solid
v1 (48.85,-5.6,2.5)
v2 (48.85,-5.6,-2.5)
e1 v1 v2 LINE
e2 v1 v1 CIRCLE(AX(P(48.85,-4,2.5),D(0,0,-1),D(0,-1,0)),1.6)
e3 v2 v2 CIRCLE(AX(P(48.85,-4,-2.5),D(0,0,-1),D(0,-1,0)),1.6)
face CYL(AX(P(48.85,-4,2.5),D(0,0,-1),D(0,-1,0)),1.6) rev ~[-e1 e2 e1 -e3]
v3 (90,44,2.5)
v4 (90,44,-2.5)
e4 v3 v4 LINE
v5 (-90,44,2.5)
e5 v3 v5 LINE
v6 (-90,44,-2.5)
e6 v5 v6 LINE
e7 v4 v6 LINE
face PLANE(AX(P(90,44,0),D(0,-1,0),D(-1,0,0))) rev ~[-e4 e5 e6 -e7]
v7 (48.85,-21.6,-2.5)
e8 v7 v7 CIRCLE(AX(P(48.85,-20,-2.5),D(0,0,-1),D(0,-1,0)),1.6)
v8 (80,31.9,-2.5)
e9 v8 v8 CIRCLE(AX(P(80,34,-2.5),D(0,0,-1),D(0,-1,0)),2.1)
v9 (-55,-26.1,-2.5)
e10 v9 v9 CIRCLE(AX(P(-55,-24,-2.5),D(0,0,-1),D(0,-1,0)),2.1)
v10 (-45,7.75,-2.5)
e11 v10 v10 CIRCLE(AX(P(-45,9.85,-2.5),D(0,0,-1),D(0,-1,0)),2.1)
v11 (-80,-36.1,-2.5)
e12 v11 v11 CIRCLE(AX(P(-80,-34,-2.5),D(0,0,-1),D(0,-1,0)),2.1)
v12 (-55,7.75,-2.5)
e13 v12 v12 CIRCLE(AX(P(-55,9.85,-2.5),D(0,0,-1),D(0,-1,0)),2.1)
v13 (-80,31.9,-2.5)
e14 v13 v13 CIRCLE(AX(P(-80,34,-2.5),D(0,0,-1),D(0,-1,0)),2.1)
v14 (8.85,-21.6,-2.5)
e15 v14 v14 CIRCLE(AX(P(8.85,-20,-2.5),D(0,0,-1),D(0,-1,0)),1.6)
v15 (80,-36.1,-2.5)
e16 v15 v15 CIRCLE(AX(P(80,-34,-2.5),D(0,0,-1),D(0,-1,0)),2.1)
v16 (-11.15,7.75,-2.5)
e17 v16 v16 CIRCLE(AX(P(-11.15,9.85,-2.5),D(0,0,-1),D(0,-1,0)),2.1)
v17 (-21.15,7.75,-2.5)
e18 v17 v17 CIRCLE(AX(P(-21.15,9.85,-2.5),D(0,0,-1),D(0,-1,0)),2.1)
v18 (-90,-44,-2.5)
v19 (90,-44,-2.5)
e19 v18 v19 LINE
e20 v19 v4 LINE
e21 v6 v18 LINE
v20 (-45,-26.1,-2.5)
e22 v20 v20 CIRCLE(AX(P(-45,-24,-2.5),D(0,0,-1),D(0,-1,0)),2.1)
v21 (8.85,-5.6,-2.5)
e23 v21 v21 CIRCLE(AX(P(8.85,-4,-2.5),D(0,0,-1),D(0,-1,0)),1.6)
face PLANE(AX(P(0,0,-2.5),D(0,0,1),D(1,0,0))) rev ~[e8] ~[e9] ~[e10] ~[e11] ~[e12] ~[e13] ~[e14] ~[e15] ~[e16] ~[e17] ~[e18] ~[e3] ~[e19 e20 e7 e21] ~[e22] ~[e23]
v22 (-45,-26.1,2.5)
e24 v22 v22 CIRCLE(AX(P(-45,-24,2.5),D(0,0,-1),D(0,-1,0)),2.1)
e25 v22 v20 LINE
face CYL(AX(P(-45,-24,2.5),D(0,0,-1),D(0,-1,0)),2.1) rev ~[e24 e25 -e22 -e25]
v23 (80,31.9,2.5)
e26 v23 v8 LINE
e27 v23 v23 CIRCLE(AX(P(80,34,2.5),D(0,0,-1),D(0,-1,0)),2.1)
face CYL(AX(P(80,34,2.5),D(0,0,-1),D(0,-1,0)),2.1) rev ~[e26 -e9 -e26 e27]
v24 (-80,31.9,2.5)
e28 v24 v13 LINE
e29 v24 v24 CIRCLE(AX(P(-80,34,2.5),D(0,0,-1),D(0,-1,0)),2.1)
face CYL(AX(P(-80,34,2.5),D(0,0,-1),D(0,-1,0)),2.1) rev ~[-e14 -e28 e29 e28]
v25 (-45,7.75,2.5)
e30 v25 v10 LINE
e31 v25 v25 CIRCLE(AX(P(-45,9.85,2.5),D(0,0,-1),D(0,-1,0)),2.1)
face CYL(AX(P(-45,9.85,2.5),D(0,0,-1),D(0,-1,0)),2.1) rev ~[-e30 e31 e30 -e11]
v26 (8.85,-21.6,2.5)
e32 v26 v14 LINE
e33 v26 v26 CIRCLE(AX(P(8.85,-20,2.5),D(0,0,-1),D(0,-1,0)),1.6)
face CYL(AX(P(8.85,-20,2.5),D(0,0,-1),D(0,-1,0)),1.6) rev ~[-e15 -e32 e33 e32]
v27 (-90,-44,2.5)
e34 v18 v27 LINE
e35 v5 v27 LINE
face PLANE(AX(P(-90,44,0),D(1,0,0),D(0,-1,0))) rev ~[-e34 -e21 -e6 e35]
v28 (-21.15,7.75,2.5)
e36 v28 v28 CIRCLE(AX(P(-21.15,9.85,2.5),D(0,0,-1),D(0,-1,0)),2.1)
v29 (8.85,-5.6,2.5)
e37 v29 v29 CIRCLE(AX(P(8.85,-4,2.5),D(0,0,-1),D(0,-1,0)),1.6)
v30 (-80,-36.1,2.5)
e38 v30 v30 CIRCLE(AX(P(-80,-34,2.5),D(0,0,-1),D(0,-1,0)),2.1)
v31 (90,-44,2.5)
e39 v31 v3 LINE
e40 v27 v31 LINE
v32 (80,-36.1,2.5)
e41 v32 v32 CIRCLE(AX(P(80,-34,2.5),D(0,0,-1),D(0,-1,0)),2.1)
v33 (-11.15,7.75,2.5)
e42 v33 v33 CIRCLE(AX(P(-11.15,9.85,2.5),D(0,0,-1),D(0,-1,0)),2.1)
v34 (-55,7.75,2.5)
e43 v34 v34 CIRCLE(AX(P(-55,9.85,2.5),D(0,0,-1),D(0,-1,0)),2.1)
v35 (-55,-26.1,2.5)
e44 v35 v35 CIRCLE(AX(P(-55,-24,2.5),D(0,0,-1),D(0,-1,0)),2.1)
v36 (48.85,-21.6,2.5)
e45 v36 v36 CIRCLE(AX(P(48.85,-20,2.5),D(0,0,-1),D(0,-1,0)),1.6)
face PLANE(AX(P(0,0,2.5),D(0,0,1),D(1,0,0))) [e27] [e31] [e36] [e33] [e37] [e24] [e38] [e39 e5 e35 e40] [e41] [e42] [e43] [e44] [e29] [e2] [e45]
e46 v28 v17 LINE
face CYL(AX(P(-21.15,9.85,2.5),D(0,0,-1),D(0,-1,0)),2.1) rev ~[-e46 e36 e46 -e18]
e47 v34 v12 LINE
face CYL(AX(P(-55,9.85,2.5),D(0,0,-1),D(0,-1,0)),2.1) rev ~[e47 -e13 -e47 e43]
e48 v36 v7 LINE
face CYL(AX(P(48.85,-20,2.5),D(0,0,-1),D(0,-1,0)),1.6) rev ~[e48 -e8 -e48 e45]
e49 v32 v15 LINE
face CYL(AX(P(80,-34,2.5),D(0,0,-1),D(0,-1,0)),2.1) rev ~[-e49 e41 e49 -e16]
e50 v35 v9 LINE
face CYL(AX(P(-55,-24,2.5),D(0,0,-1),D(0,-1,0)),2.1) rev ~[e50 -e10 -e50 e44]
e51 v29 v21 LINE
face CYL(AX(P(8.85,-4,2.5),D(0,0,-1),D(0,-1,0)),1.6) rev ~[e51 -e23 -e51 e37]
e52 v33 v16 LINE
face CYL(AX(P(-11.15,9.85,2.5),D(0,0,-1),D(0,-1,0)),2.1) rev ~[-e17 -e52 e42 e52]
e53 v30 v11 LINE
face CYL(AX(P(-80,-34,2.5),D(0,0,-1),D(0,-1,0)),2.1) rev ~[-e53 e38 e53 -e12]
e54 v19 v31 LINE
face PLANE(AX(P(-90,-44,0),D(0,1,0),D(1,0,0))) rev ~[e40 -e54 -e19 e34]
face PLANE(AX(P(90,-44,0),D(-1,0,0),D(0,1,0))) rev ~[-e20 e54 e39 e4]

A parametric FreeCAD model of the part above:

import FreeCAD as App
import Part
import Sketcher
Q = App.Units.Quantity


def add_polygon(sketch, points):
    """Adds a closed chain of lines whose ends are joined by coincident constraints."""
    first, n = sketch.GeometryCount, len(points)
    for a, b in zip(points, points[1:] + points[:1]):
        sketch.addGeometry(Part.LineSegment(App.Vector(*a, 0), App.Vector(*b, 0)), False)
    for i in range(n):
        sketch.addConstraint(Sketcher.Constraint("Coincident", first + i, 2, first + (i + 1) % n, 1))

doc = App.newDocument("Part")
body = doc.addObject("PartDesign::Body", "Body")

# Sketch on XY plane
sketch1 = doc.addObject("Sketcher::SketchObject", "Sketch")
body.addObject(sketch1)
sketch1.AttachmentSupport = (doc.XY_Plane, [""])
sketch1.MapMode = "FlatFace"
add_polygon(sketch1, [(-90, 44), (-90, -44), (90, -44), (90, 44)])  # lines 0-3
sketch1.addConstraint(Sketcher.Constraint("Vertical", 0))
sketch1.addConstraint(Sketcher.Constraint("Horizontal", 1))
sketch1.addConstraint(Sketcher.Constraint("Vertical", 2))
sketch1.addConstraint(Sketcher.Constraint("Horizontal", 3))
sketch1.addConstraint(Sketcher.Constraint("Symmetric", 0, 2, 2, 2, -1, 1))
sketch1.addConstraint(Sketcher.Constraint("DistanceX", 1, 1, 1, 2, Q("180 mm")))
sketch1.addConstraint(Sketcher.Constraint("DistanceY", 0, 2, 0, 1, Q("88 mm")))
pad1 = doc.addObject("PartDesign::Pad", "Pad")
body.addObject(pad1)
pad1.Profile = sketch1
pad1.Length = 5
pad1.Midplane = True

# Sketch on XY plane
sketch2 = doc.addObject("Sketcher::SketchObject", "Sketch001")
body.addObject(sketch2)
sketch2.AttachmentSupport = (doc.XY_Plane, [""])
sketch2.MapMode = "FlatFace"
sketch2.AttachmentOffset = App.Placement(App.Vector(0, 0, 2.5), App.Rotation())
sketch2.addGeometry(Part.Circle(App.Vector(-45, -24, 0), App.Vector(0, 0, 1), 2.1), False)
sketch2.addGeometry(Part.Circle(App.Vector(-45, 9.8, 0), App.Vector(0, 0, 1), 2.1), False)
sketch2.addGeometry(Part.Circle(App.Vector(-11.2, 9.8, 0), App.Vector(0, 0, 1), 2.1), False)
sketch2.addConstraint(Sketcher.Constraint("Equal", 0, 1))
sketch2.addConstraint(Sketcher.Constraint("Equal", 1, 2))
sketch2.addConstraint(Sketcher.Constraint("Horizontal", 1, 3, 2, 3))
sketch2.addConstraint(Sketcher.Constraint("Vertical", 0, 3, 1, 3))
sketch2.addConstraint(Sketcher.Constraint("Diameter", 0, Q("4.2 mm")))
sketch2.addConstraint(Sketcher.Constraint("DistanceX", 0, 3, -1, 1, Q("45 mm")))
sketch2.addConstraint(Sketcher.Constraint("DistanceY", 0, 3, -1, 1, Q("24 mm")))
sketch2.addConstraint(Sketcher.Constraint("DistanceY", -1, 1, 1, 3, Q("9.85 mm")))
sketch2.addConstraint(Sketcher.Constraint("DistanceX", 2, 3, -1, 1, Q("11.15 mm")))
doc.recompute()
hole = doc.addObject("PartDesign::Hole", "Hole")
body.addObject(hole)
hole.Profile = sketch2
hole.ThreadType = "None"
hole.Diameter = 4.2
hole.DepthType = "ThroughAll"

# Sketch on XY plane
sketch3 = doc.addObject("Sketcher::SketchObject", "Sketch002")
body.addObject(sketch3)
sketch3.AttachmentSupport = (doc.XY_Plane, [""])
sketch3.MapMode = "FlatFace"
sketch3.AttachmentOffset = App.Placement(App.Vector(0, 0, 2.5), App.Rotation())
sketch3.addGeometry(Part.Circle(App.Vector(8.8, -20, 0), App.Vector(0, 0, 1), 1.6), False)
sketch3.addGeometry(Part.Circle(App.Vector(8.8, -4, 0), App.Vector(0, 0, 1), 1.6), False)
sketch3.addGeometry(Part.Circle(App.Vector(48.9, -4, 0), App.Vector(0, 0, 1), 1.6), False)
sketch3.addGeometry(Part.Circle(App.Vector(48.9, -20, 0), App.Vector(0, 0, 1), 1.6), False)
sketch3.addConstraint(Sketcher.Constraint("Equal", 0, 1))
sketch3.addConstraint(Sketcher.Constraint("Equal", 1, 2))
sketch3.addConstraint(Sketcher.Constraint("Equal", 2, 3))
sketch3.addConstraint(Sketcher.Constraint("Horizontal", 1, 3, 2, 3))
sketch3.addConstraint(Sketcher.Constraint("Horizontal", 0, 3, 3, 3))
sketch3.addConstraint(Sketcher.Constraint("Vertical", 0, 3, 1, 3))
sketch3.addConstraint(Sketcher.Constraint("Vertical", 2, 3, 3, 3))
sketch3.addConstraint(Sketcher.Constraint("Diameter", 0, Q("3.2 mm")))
sketch3.addConstraint(Sketcher.Constraint("DistanceY", 0, 3, -1, 1, Q("20 mm")))
sketch3.addConstraint(Sketcher.Constraint("DistanceY", 1, 3, -1, 1, Q("4 mm")))
sketch3.addConstraint(Sketcher.Constraint("DistanceX", 1, 3, 2, 3, Q("40 mm")))
sketch3.addConstraint(Sketcher.Constraint("DistanceX", -1, 1, 0, 3, Q("8.85 mm")))
doc.recompute()
hole2 = doc.addObject("PartDesign::Hole", "Hole001")
body.addObject(hole2)
hole2.Profile = sketch3
hole2.ThreadType = "None"
hole2.Diameter = 3.2
hole2.DepthType = "Dimension"
hole2.Depth = 9.525
hole2.DrillPoint = "Angled"
hole2.DrillPointAngle = 118

# Sketch on XY plane
sketch4 = doc.addObject("Sketcher::SketchObject", "Sketch003")
body.addObject(sketch4)
sketch4.AttachmentSupport = (doc.XY_Plane, [""])
sketch4.MapMode = "FlatFace"
sketch4.AttachmentOffset = App.Placement(App.Vector(0, 0, 2.5), App.Rotation())
sketch4.addGeometry(Part.Circle(App.Vector(-80, -34, 0), App.Vector(0, 0, 1), 2.1), False)
sketch4.addGeometry(Part.Circle(App.Vector(-80, 34, 0), App.Vector(0, 0, 1), 2.1), False)
sketch4.addGeometry(Part.Circle(App.Vector(80, 34, 0), App.Vector(0, 0, 1), 2.1), False)
sketch4.addGeometry(Part.Circle(App.Vector(80, -34, 0), App.Vector(0, 0, 1), 2.1), False)
sketch4.addConstraint(Sketcher.Constraint("Equal", 0, 1))
sketch4.addConstraint(Sketcher.Constraint("Equal", 1, 2))
sketch4.addConstraint(Sketcher.Constraint("Equal", 2, 3))
sketch4.addConstraint(Sketcher.Constraint("Symmetric", 0, 3, 2, 3, -1, 1))
sketch4.addConstraint(Sketcher.Constraint("Symmetric", 1, 3, 3, 3, -1, 1))
sketch4.addConstraint(Sketcher.Constraint("Symmetric", 1, 3, 2, 3, -2))
sketch4.addConstraint(Sketcher.Constraint("Diameter", 0, Q("4.2 mm")))
sketch4.addConstraint(Sketcher.Constraint("DistanceX", 0, 3, -1, 1, Q("80 mm")))
sketch4.addConstraint(Sketcher.Constraint("DistanceY", 0, 3, -1, 1, Q("34 mm")))
doc.recompute()
hole3 = doc.addObject("PartDesign::Hole", "Hole002")
body.addObject(hole3)
hole3.Profile = sketch4
hole3.ThreadType = "None"
hole3.Diameter = 4.2
hole3.DepthType = "Dimension"
hole3.Depth = 9.525
hole3.DrillPoint = "Angled"
hole3.DrillPointAngle = 118

# Sketch on XY plane
sketch5 = doc.addObject("Sketcher::SketchObject", "Sketch004")
body.addObject(sketch5)
sketch5.AttachmentSupport = (doc.XY_Plane, [""])
sketch5.MapMode = "FlatFace"
sketch5.AttachmentOffset = App.Placement(App.Vector(0, 0, 2.5), App.Rotation())
sketch5.addGeometry(Part.Circle(App.Vector(-55, -24, 0), App.Vector(0, 0, 1), 2.1), False)
sketch5.addGeometry(Part.Circle(App.Vector(-55, 9.8, 0), App.Vector(0, 0, 1), 2.1), False)
sketch5.addGeometry(Part.Circle(App.Vector(-21.1, 9.8, 0), App.Vector(0, 0, 1), 2.1), False)
sketch5.addConstraint(Sketcher.Constraint("Equal", 0, 1))
sketch5.addConstraint(Sketcher.Constraint("Equal", 1, 2))
sketch5.addConstraint(Sketcher.Constraint("Horizontal", 1, 3, 2, 3))
sketch5.addConstraint(Sketcher.Constraint("Vertical", 0, 3, 1, 3))
sketch5.addConstraint(Sketcher.Constraint("Diameter", 0, Q("4.2 mm")))
sketch5.addConstraint(Sketcher.Constraint("DistanceX", 0, 3, -1, 1, Q("55 mm")))
sketch5.addConstraint(Sketcher.Constraint("DistanceY", 0, 3, -1, 1, Q("24 mm")))
sketch5.addConstraint(Sketcher.Constraint("DistanceY", -1, 1, 1, 3, Q("9.85 mm")))
sketch5.addConstraint(Sketcher.Constraint("DistanceX", 2, 3, -1, 1, Q("21.15 mm")))
doc.recompute()
hole4 = doc.addObject("PartDesign::Hole", "Hole003")
body.addObject(hole4)
hole4.Profile = sketch5
hole4.ThreadType = "None"
hole4.Diameter = 4.2
hole4.DepthType = "Dimension"
hole4.Depth = 8
hole4.DrillPoint = "Angled"
hole4.DrillPointAngle = 118

doc.recompute()
